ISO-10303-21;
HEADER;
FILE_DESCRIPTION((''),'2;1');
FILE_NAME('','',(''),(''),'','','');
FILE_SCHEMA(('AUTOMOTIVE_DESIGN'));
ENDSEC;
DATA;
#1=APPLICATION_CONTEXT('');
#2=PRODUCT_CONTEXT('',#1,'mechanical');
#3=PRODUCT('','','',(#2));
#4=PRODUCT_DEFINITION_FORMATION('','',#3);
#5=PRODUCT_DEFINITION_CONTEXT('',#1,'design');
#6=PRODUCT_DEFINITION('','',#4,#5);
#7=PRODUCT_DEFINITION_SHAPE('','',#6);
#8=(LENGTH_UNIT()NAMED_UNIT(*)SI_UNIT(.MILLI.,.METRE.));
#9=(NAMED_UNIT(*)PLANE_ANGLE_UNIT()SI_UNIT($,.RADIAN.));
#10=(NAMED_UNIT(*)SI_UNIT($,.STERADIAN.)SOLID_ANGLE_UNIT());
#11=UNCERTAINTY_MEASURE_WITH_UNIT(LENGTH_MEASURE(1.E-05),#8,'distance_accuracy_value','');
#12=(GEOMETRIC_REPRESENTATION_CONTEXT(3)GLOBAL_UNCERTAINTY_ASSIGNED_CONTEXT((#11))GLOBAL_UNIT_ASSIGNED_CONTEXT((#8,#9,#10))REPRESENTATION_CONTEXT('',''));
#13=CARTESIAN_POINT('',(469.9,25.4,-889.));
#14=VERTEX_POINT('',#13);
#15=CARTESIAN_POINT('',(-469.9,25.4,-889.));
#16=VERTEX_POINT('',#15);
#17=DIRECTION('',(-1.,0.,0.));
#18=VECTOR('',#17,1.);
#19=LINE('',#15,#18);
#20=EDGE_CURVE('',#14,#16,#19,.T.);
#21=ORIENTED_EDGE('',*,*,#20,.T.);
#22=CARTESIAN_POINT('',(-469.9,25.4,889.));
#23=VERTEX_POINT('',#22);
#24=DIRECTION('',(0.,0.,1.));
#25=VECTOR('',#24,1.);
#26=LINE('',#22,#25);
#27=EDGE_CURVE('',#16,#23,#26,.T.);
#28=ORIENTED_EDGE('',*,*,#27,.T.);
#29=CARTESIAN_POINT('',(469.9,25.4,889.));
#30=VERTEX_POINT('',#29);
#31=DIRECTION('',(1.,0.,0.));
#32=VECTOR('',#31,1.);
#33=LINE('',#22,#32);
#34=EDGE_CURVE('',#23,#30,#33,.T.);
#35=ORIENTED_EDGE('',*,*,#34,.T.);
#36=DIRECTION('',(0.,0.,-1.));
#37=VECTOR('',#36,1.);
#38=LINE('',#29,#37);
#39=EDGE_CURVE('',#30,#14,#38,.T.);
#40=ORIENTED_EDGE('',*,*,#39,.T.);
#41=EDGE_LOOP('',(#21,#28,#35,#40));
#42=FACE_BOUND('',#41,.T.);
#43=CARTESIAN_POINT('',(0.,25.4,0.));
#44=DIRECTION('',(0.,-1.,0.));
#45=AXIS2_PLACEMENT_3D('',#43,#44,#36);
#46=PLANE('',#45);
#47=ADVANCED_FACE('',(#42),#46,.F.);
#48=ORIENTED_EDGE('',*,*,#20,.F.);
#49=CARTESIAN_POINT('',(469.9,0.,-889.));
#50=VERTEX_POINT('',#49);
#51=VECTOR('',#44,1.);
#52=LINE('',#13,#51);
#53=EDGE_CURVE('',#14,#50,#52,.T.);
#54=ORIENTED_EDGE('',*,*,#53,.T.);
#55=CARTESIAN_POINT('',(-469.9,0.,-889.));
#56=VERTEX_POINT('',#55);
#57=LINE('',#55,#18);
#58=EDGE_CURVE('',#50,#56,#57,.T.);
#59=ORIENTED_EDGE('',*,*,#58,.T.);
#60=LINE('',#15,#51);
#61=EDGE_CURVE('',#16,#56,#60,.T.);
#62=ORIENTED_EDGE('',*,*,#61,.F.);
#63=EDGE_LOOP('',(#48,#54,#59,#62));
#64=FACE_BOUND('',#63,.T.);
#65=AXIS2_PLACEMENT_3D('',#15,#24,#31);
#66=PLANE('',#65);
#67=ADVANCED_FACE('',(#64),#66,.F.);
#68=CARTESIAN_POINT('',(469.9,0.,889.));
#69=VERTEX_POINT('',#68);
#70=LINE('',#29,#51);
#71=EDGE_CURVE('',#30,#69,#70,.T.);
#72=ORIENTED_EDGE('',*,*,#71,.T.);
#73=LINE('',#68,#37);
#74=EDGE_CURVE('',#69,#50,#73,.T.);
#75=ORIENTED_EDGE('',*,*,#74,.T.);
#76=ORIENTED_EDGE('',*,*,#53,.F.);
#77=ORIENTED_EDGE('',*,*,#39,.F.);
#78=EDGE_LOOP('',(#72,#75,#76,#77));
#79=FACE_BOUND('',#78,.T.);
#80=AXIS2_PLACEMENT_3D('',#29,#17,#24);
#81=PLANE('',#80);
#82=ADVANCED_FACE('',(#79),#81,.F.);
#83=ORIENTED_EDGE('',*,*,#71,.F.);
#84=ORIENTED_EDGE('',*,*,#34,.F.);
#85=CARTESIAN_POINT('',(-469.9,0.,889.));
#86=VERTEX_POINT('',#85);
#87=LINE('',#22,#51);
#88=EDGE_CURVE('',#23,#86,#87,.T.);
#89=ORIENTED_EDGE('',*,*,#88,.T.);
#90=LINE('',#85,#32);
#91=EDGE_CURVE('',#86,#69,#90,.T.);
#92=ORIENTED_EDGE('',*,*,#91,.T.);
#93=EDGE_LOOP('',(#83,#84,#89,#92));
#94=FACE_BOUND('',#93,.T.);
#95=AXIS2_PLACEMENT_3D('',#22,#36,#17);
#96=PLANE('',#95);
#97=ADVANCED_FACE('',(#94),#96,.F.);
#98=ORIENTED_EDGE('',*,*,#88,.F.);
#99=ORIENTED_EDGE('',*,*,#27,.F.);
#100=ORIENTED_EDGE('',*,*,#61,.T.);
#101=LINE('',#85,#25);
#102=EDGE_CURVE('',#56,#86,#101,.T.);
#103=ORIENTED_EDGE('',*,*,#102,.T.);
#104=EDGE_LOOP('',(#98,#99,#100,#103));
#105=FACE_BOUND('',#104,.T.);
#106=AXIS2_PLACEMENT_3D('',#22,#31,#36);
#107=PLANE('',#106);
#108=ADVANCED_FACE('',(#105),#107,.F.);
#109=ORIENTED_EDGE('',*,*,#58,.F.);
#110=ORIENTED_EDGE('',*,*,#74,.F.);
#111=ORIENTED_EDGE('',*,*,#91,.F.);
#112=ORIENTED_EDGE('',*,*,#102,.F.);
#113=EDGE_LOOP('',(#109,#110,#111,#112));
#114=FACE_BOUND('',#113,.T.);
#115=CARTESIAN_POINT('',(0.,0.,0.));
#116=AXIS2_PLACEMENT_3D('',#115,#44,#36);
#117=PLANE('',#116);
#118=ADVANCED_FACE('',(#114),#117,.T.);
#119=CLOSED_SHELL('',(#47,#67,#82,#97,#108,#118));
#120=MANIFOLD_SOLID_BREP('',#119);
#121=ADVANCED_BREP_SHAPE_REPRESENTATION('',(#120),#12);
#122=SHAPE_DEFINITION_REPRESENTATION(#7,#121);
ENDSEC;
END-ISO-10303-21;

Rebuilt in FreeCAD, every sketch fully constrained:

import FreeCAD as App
import Part
import Sketcher
from FreeCAD import Vector
Q = App.Units.Quantity

doc = App.newDocument("Part")
body = doc.addObject("PartDesign::Body", "Body")

sketch1 = body.newObject("Sketcher::SketchObject", "Sketch")
sketch1.AttachmentSupport = (doc.getObject("XZ_Plane"), [""])
sketch1.MapMode = "FlatFace"
sketch1.addGeometry(Part.LineSegment(Vector(-470, -889, 0), Vector(-470, 889, 0)), False)
sketch1.addGeometry(Part.LineSegment(Vector(-470, 889, 0), Vector(470, 889, 0)), False)
sketch1.addGeometry(Part.LineSegment(Vector(470, 889, 0), Vector(470, -889, 0)), False)
sketch1.addGeometry(Part.LineSegment(Vector(470, -889, 0), Vector(-470, -889, 0)), False)
sketch1.addConstraint(Sketcher.Constraint("Coincident", 0, 2, 1, 1))
sketch1.addConstraint(Sketcher.Constraint("Coincident", 1, 2, 2, 1))
sketch1.addConstraint(Sketcher.Constraint("Coincident", 2, 2, 3, 1))
sketch1.addConstraint(Sketcher.Constraint("Coincident", 3, 2, 0, 1))
sketch1.addConstraint(Sketcher.Constraint("Vertical", 0))
sketch1.addConstraint(Sketcher.Constraint("Horizontal", 1))
sketch1.addConstraint(Sketcher.Constraint("Vertical", 2))
sketch1.addConstraint(Sketcher.Constraint("Horizontal", 3))
sketch1.addConstraint(Sketcher.Constraint("Symmetric", 0, 2, 2, 2, -1, 1))
sketch1.addConstraint(Sketcher.Constraint("DistanceX", 1, 1, 1, 2, Q("37 in")))
sketch1.addConstraint(Sketcher.Constraint("DistanceY", 0, 1, 0, 2, Q("70 in")))
pad1 = body.newObject("PartDesign::Pad", "Pad")
pad1.Profile = sketch1
pad1.Length = Q("1 in")
pad1.Reversed = True

doc.recompute()
